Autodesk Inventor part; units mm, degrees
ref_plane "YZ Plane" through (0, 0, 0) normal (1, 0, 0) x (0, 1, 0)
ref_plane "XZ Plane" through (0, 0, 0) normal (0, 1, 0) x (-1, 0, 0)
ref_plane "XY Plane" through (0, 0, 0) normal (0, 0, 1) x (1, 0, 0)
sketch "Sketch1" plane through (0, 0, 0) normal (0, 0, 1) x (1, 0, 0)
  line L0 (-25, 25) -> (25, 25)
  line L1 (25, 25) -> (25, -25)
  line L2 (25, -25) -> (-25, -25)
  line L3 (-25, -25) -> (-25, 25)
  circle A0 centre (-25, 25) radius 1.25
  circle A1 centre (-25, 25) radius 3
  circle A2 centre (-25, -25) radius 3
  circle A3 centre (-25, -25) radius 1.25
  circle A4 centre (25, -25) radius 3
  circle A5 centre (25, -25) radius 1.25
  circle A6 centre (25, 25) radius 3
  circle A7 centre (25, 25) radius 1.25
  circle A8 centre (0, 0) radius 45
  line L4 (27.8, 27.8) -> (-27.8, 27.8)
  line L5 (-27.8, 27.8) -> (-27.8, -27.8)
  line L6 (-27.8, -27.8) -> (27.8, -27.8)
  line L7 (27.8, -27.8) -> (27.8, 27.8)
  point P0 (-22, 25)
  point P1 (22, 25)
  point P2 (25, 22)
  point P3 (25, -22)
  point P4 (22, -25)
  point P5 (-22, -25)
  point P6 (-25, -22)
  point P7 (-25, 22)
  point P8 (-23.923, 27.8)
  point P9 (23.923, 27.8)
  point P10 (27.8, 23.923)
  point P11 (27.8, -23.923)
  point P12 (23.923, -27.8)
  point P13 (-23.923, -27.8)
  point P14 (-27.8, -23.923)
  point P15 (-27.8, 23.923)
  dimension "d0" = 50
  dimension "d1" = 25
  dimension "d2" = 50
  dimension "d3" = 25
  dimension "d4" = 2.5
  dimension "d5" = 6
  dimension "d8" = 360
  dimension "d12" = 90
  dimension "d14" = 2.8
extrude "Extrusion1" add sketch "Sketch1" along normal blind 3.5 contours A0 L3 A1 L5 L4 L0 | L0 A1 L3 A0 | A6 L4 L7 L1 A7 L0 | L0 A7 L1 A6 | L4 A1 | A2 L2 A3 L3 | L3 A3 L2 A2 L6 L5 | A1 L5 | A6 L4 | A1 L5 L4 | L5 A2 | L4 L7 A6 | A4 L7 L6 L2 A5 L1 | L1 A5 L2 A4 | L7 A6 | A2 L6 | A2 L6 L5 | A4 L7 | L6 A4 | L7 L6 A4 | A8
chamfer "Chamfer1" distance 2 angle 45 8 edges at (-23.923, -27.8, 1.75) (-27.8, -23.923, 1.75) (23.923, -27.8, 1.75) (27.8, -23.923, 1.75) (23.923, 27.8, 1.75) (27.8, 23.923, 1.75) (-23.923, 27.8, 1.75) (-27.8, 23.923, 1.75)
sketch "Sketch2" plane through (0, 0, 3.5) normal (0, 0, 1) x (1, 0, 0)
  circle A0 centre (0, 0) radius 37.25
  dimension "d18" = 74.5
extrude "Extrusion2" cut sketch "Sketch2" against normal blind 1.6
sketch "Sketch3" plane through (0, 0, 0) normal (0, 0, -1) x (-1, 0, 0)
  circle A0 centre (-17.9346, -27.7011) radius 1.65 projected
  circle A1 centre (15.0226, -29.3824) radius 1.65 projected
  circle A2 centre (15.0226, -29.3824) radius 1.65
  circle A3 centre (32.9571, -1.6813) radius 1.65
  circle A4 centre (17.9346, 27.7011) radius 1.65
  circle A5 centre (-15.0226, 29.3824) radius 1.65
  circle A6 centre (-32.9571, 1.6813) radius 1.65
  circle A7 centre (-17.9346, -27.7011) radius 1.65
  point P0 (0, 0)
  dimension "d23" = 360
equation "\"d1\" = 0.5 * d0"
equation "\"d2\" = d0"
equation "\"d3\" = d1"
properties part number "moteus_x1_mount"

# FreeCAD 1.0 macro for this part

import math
import FreeCAD as App
import Part
import Sketcher

V = App.Vector


def edges_at(feature, points):
    """Names of the edges that pass closest to the given points."""
    edges = feature.Shape.Edges
    near = lambda p: min(range(len(edges)), key=lambda i: edges[i].distToShape(Part.Vertex(*p))[0])
    return sorted({f"Edge{near(p) + 1}" for p in points})

doc = App.newDocument("Part")
body = doc.addObject("PartDesign::Body", "Body")

sketch1 = body.newObject("Sketcher::SketchObject", "Sketch")
sketch1.AttachmentSupport = (doc.getObject("XY_Plane"), [""])
sketch1.MapMode = "FlatFace"
sketch1.addGeometry([
    Part.Circle(V(0, 0, 0), V(0, 0, 1), 45),
    Part.Circle(V(-25, 25, 0), V(0, 0, 1), 1.2),
    Part.ArcOfCircle(Part.Circle(V(-25, 25, 0), V(0, 0, 1), 3), math.radians(-159), math.radians(69)),
    Part.LineSegment(V(-23.9, 27.8, 0), V(23.9, 27.8, 0)),
    Part.ArcOfCircle(Part.Circle(V(25, 25, 0), V(0, 0, 1), 3), math.radians(111), math.radians(339)),
    Part.LineSegment(V(27.8, 23.9, 0), V(27.8, -23.9, 0)),
    Part.ArcOfCircle(Part.Circle(V(25, -25, 0), V(0, 0, 1), 3), math.radians(21), math.radians(249)),
    Part.LineSegment(V(23.9, -27.8, 0), V(-23.9, -27.8, 0)),
    Part.ArcOfCircle(Part.Circle(V(-25, -25, 0), V(0, 0, 1), 3), math.radians(-69), math.radians(159)),
    Part.LineSegment(V(-27.8, -23.9, 0), V(-27.8, 23.9, 0)),
    Part.Circle(V(25, 25, 0), V(0, 0, 1), 1.2),
    Part.Circle(V(-25, -25, 0), V(0, 0, 1), 1.2),
    Part.Circle(V(25, -25, 0), V(0, 0, 1), 1.2),
], False)
sketch1.addConstraint([
    Sketcher.Constraint("Coincident", 2, 2, 3, 1),
    Sketcher.Constraint("Coincident", 3, 2, 4, 1),
    Sketcher.Constraint("Coincident", 4, 2, 5, 1),
    Sketcher.Constraint("Coincident", 5, 2, 6, 1),
    Sketcher.Constraint("Coincident", 6, 2, 7, 1),
    Sketcher.Constraint("Coincident", 7, 2, 8, 1),
    Sketcher.Constraint("Coincident", 8, 2, 9, 1),
    Sketcher.Constraint("Coincident", 9, 2, 2, 1),
    Sketcher.Constraint("Horizontal", 3),
    Sketcher.Constraint("Vertical", 5),
    Sketcher.Constraint("Horizontal", 7),
    Sketcher.Constraint("Vertical", 9),
    Sketcher.Constraint("Coincident", 0, 3, -1, 1),
    Sketcher.Constraint("Coincident", 2, 3, 1, 3),
    Sketcher.Constraint("Coincident", 10, 3, 4, 3),
    Sketcher.Constraint("Coincident", 11, 3, 8, 3),
    Sketcher.Constraint("Coincident", 12, 3, 6, 3),
    Sketcher.Constraint("Equal", 2, 4),
    Sketcher.Constraint("Equal", 4, 6),
    Sketcher.Constraint("Equal", 6, 8),
    Sketcher.Constraint("Equal", 1, 10),
    Sketcher.Constraint("Equal", 10, 11),
    Sketcher.Constraint("Equal", 11, 12),
    Sketcher.Constraint("Symmetric", 1, 3, 6, 3, -1, 1),
    Sketcher.Constraint("Symmetric", 4, 3, 8, 3, -1, 1),
    Sketcher.Constraint("Symmetric", 1, 3, 4, 3, -2),
    Sketcher.Constraint("Horizontal", 5, 2, 8, 2),
    Sketcher.Constraint("Vertical", 3, 2, 6, 2),
    Sketcher.Constraint("Equal", 7, 5),
    Sketcher.Constraint("Diameter", 0, 90.0),
    Sketcher.Constraint("Radius", 2, 3.0),
    Sketcher.Constraint("Diameter", 1, 2.5),
    Sketcher.Constraint("DistanceX", 1, 3, -1, 1, 25.0),
    Sketcher.Constraint("DistanceY", -1, 1, 1, 3, 25.0),
    Sketcher.Constraint("DistanceY", 1, 3, 2, 2, 2.8),
])
pad1 = body.newObject("PartDesign::Pad", "Pad")
pad1.Profile = sketch1
pad1.Length = 3.5
doc.recompute()

chamfer = body.newObject("PartDesign::Chamfer", "Chamfer")
chamfer.Base = (pad1, edges_at(pad1, [
    (-23.923, -27.8, 1.75),
    (-27.8, -23.923, 1.75),
    (23.923, -27.8, 1.75),
    (27.8, -23.923, 1.75),
    (23.923, 27.8, 1.75),
    (27.8, 23.923, 1.75),
    (-23.923, 27.8, 1.75),
    (-27.8, 23.923, 1.75),
]))
chamfer.Size = 2

sketch2 = body.newObject("Sketcher::SketchObject", "Sketch001")
sketch2.AttachmentSupport = (doc.getObject("XY_Plane"), [""])
sketch2.MapMode = "FlatFace"
sketch2.AttachmentOffset = App.Placement(V(0, 0, 3.5), App.Rotation())
sketch2.addGeometry(Part.Circle(V(0, 0, 0), V(0, 0, 1), 37), False)
sketch2.addConstraint([
    Sketcher.Constraint("Coincident", 0, 3, -1, 1),
    Sketcher.Constraint("Diameter", 0, 74.5),
])
pocket1 = body.newObject("PartDesign::Pocket", "Pocket")
pocket1.Profile = sketch2
pocket1.Length = 1.6

doc.recompute()
